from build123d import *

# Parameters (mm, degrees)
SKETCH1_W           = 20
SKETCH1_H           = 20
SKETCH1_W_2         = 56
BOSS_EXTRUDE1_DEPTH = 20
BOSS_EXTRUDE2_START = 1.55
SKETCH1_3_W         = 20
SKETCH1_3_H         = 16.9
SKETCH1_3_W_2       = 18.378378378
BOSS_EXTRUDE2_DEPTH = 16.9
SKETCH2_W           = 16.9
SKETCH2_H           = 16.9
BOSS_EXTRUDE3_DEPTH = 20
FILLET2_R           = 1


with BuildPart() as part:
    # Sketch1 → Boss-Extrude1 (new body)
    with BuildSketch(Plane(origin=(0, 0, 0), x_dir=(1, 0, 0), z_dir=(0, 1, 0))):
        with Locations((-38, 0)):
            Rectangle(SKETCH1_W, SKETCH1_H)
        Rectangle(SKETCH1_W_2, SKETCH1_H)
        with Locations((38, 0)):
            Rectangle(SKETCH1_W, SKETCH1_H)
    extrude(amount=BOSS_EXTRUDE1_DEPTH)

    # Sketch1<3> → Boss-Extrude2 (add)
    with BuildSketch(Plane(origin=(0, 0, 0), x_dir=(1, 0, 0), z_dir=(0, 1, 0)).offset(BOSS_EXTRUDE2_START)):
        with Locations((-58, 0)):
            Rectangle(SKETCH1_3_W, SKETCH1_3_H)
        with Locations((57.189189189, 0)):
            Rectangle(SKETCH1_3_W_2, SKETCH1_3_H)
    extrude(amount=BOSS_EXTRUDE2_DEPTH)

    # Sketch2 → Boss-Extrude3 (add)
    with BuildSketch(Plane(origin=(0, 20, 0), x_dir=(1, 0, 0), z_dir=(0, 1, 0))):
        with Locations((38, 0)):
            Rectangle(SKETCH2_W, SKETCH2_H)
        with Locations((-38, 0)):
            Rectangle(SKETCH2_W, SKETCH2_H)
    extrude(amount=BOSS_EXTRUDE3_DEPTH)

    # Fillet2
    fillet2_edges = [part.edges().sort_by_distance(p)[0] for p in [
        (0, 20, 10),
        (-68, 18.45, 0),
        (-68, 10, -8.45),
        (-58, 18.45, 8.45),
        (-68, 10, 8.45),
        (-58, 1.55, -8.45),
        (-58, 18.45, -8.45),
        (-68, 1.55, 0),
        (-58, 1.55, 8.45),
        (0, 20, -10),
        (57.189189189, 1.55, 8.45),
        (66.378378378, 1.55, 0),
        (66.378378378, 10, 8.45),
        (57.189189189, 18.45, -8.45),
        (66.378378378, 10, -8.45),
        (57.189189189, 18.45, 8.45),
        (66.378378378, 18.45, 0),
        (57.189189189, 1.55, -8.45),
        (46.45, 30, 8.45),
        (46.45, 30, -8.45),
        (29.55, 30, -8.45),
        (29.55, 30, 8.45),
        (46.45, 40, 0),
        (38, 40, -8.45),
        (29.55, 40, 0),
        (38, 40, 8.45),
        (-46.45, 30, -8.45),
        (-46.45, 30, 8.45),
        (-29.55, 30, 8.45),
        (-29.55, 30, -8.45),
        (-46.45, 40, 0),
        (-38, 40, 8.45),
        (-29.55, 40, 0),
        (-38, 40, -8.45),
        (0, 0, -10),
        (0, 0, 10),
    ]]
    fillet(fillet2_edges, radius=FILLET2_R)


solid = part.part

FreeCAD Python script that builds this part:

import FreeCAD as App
import Part
import Sketcher

V = App.Vector


def edges_at(feature, points):
    """Names of the edges that pass closest to the given points."""
    edges = feature.Shape.Edges
    near = lambda p: min(range(len(edges)), key=lambda i: edges[i].distToShape(Part.Vertex(*p))[0])
    return sorted({f"Edge{near(p) + 1}" for p in points})

doc = App.newDocument("Part")
body = doc.addObject("PartDesign::Body", "Body")

sketch1 = body.newObject("Sketcher::SketchObject", "Sketch")
sketch1.AttachmentSupport = (doc.getObject("XZ_Plane"), [""])
sketch1.MapMode = "FlatFace"
sketch1.addGeometry(Part.LineSegment(V(-48, -10, 0), V(-48, 10, 0)), False)
sketch1.addGeometry(Part.LineSegment(V(-48, 10, 0), V(48, 10, 0)), False)
sketch1.addGeometry(Part.LineSegment(V(48, 10, 0), V(48, -10, 0)), False)
sketch1.addGeometry(Part.LineSegment(V(48, -10, 0), V(-48, -10, 0)), False)
sketch1.addConstraint(Sketcher.Constraint("Coincident", 0, 2, 1, 1))
sketch1.addConstraint(Sketcher.Constraint("Coincident", 1, 2, 2, 1))
sketch1.addConstraint(Sketcher.Constraint("Coincident", 2, 2, 3, 1))
sketch1.addConstraint(Sketcher.Constraint("Coincident", 3, 2, 0, 1))
sketch1.addConstraint(Sketcher.Constraint("Vertical", 0))
sketch1.addConstraint(Sketcher.Constraint("Horizontal", 1))
sketch1.addConstraint(Sketcher.Constraint("Vertical", 2))
sketch1.addConstraint(Sketcher.Constraint("Horizontal", 3))
sketch1.addConstraint(Sketcher.Constraint("Symmetric", 0, 2, 2, 2, -1, 1))
sketch1.addConstraint(Sketcher.Constraint("DistanceX", 1, 1, 1, 2, 96.0))
sketch1.addConstraint(Sketcher.Constraint("DistanceY", 0, 1, 0, 2, 20.0))
pad1 = body.newObject("PartDesign::Pad", "Pad")
pad1.Profile = sketch1
pad1.Length = 20
pad1.Reversed = True

sketch2 = body.newObject("Sketcher::SketchObject", "Sketch001")
sketch2.AttachmentSupport = (doc.getObject("XZ_Plane"), [""])
sketch2.MapMode = "FlatFace"
sketch2.AttachmentOffset = App.Placement(V(0, 0, -1.55), App.Rotation())
sketch2.addGeometry(Part.LineSegment(V(-68, -8, 0), V(-68, 8, 0)), False)
sketch2.addGeometry(Part.LineSegment(V(-68, 8, 0), V(-48, 8, 0)), False)
sketch2.addGeometry(Part.LineSegment(V(-48, 8, 0), V(-48, -8, 0)), False)
sketch2.addGeometry(Part.LineSegment(V(-48, -8, 0), V(-68, -8, 0)), False)
sketch2.addGeometry(Part.LineSegment(V(48, -8, 0), V(48, 8, 0)), False)
sketch2.addGeometry(Part.LineSegment(V(48, 8, 0), V(66, 8, 0)), False)
sketch2.addGeometry(Part.LineSegment(V(66, 8, 0), V(66, -8, 0)), False)
sketch2.addGeometry(Part.LineSegment(V(66, -8, 0), V(48, -8, 0)), False)
sketch2.addConstraint(Sketcher.Constraint("Coincident", 0, 2, 1, 1))
sketch2.addConstraint(Sketcher.Constraint("Coincident", 1, 2, 2, 1))
sketch2.addConstraint(Sketcher.Constraint("Coincident", 2, 2, 3, 1))
sketch2.addConstraint(Sketcher.Constraint("Coincident", 3, 2, 0, 1))
sketch2.addConstraint(Sketcher.Constraint("Coincident", 4, 2, 5, 1))
sketch2.addConstraint(Sketcher.Constraint("Coincident", 5, 2, 6, 1))
sketch2.addConstraint(Sketcher.Constraint("Coincident", 6, 2, 7, 1))
sketch2.addConstraint(Sketcher.Constraint("Coincident", 7, 2, 4, 1))
sketch2.addConstraint(Sketcher.Constraint("Vertical", 0))
sketch2.addConstraint(Sketcher.Constraint("Horizontal", 1))
sketch2.addConstraint(Sketcher.Constraint("Vertical", 2))
sketch2.addConstraint(Sketcher.Constraint("Horizontal", 3))
sketch2.addConstraint(Sketcher.Constraint("Vertical", 4))
sketch2.addConstraint(Sketcher.Constraint("Horizontal", 5))
sketch2.addConstraint(Sketcher.Constraint("Vertical", 6))
sketch2.addConstraint(Sketcher.Constraint("Horizontal", 7))
sketch2.addConstraint(Sketcher.Constraint("Symmetric", 2, 2, 4, 2, -1, 1))
sketch2.addConstraint(Sketcher.Constraint("Horizontal", 1, 2, 4, 2))
sketch2.addConstraint(Sketcher.Constraint("Horizontal", 3, 2, 6, 2))
sketch2.addConstraint(Sketcher.Constraint("DistanceX", 1, 1, 1, 2, 20.0))
sketch2.addConstraint(Sketcher.Constraint("DistanceY", 0, 1, 0, 2, 16.9))
sketch2.addConstraint(Sketcher.Constraint("DistanceX", 0, 2, -1, 1, 68.0))
sketch2.addConstraint(Sketcher.Constraint("DistanceX", 5, 1, 5, 2, 18.378378))
pad2 = body.newObject("PartDesign::Pad", "Pad001")
pad2.Profile = sketch2
pad2.Length = 16.9
pad2.Reversed = True

sketch3 = body.newObject("Sketcher::SketchObject", "Sketch002")
sketch3.AttachmentSupport = (doc.getObject("XZ_Plane"), [""])
sketch3.MapMode = "FlatFace"
sketch3.AttachmentOffset = App.Placement(V(0, 0, -20), App.Rotation())
sketch3.addGeometry(Part.LineSegment(V(30, -8, 0), V(30, 8, 0)), False)
sketch3.addGeometry(Part.LineSegment(V(30, 8, 0), V(46, 8, 0)), False)
sketch3.addGeometry(Part.LineSegment(V(46, 8, 0), V(46, -8, 0)), False)
sketch3.addGeometry(Part.LineSegment(V(46, -8, 0), V(30, -8, 0)), False)
sketch3.addGeometry(Part.LineSegment(V(-46, -8, 0), V(-46, 8, 0)), False)
sketch3.addGeometry(Part.LineSegment(V(-46, 8, 0), V(-30, 8, 0)), False)
sketch3.addGeometry(Part.LineSegment(V(-30, 8, 0), V(-30, -8, 0)), False)
sketch3.addGeometry(Part.LineSegment(V(-30, -8, 0), V(-46, -8, 0)), False)
sketch3.addConstraint(Sketcher.Constraint("Coincident", 0, 2, 1, 1))
sketch3.addConstraint(Sketcher.Constraint("Coincident", 1, 2, 2, 1))
sketch3.addConstraint(Sketcher.Constraint("Coincident", 2, 2, 3, 1))
sketch3.addConstraint(Sketcher.Constraint("Coincident", 3, 2, 0, 1))
sketch3.addConstraint(Sketcher.Constraint("Coincident", 4, 2, 5, 1))
sketch3.addConstraint(Sketcher.Constraint("Coincident", 5, 2, 6, 1))
sketch3.addConstraint(Sketcher.Constraint("Coincident", 6, 2, 7, 1))
sketch3.addConstraint(Sketcher.Constraint("Coincident", 7, 2, 4, 1))
sketch3.addConstraint(Sketcher.Constraint("Vertical", 0))
sketch3.addConstraint(Sketcher.Constraint("Horizontal", 1))
sketch3.addConstraint(Sketcher.Constraint("Vertical", 2))
sketch3.addConstraint(Sketcher.Constraint("Horizontal", 3))
sketch3.addConstraint(Sketcher.Constraint("Vertical", 4))
sketch3.addConstraint(Sketcher.Constraint("Horizontal", 5))
sketch3.addConstraint(Sketcher.Constraint("Vertical", 6))
sketch3.addConstraint(Sketcher.Constraint("Horizontal", 7))
sketch3.addConstraint(Sketcher.Constraint("Symmetric", 2, 2, 4, 2, -1, 1))
sketch3.addConstraint(Sketcher.Constraint("Symmetric", 0, 2, 6, 2, -1, 1))
sketch3.addConstraint(Sketcher.Constraint("Horizontal", 1, 2, 4, 2))
sketch3.addConstraint(Sketcher.Constraint("Equal", 7, 0))
sketch3.addConstraint(Sketcher.Constraint("DistanceX", 1, 1, 1, 2, 16.9))
sketch3.addConstraint(Sketcher.Constraint("DistanceX", 4, 2, 0, 2, 76.0))
pad3 = body.newObject("PartDesign::Pad", "Pad002")
pad3.Profile = sketch3
pad3.Length = 20
pad3.Reversed = True
doc.recompute()

fillet = body.newObject("PartDesign::Fillet", "Fillet")
fillet.Base = (pad3, edges_at(pad3, [
    (0, 20, 10),
    (-68, 18.45, 0),
    (-68, 10, -8.45),
    (-58, 18.45, 8.45),
    (-68, 10, 8.45),
    (-58, 1.55, -8.45),
    (-58, 18.45, -8.45),
    (-68, 1.55, 0),
    (-58, 1.55, 8.45),
    (0, 20, -10),
    (57.189, 1.55, 8.45),
    (66.378, 1.55, 0),
    (66.378, 10, 8.45),
    (57.189, 18.45, -8.45),
    (66.378, 10, -8.45),
    (57.189, 18.45, 8.45),
    (66.378, 18.45, 0),
    (57.189, 1.55, -8.45),
    (46.45, 30, 8.45),
    (46.45, 30, -8.45),
    (29.55, 30, -8.45),
    (29.55, 30, 8.45),
    (46.45, 40, 0),
    (38, 40, -8.45),
    (29.55, 40, 0),
    (38, 40, 8.45),
    (-46.45, 30, -8.45),
    (-46.45, 30, 8.45),
    (-29.55, 30, 8.45),
    (-29.55, 30, -8.45),
    (-46.45, 40, 0),
    (-38, 40, 8.45),
    (-29.55, 40, 0),
    (-38, 40, -8.45),
    (0, 0, -10),
    (0, 0, 10),
]))
fillet.Radius = 1

doc.recompute()
